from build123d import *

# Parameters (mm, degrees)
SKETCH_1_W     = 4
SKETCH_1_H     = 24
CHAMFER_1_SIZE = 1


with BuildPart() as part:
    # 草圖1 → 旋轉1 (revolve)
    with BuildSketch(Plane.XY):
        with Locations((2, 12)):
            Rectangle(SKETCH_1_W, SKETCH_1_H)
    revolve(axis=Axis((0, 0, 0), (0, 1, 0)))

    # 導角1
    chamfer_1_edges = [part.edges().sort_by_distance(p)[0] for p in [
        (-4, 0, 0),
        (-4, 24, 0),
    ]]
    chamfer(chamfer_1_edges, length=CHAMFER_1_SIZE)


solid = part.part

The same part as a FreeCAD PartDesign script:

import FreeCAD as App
import Part
import Sketcher
Q = App.Units.Quantity


def edges_at(feature, points):
    """Names of the edges that pass closest to the given points."""
    edges = feature.Shape.Edges
    near = lambda p: min(range(len(edges)), key=lambda i: edges[i].distToShape(Part.Vertex(*p))[0])
    return sorted({f"Edge{near(p) + 1}" for p in points})


def add_polygon(sketch, points):
    """Adds a closed chain of lines whose ends are joined by coincident constraints."""
    first, n = sketch.GeometryCount, len(points)
    for a, b in zip(points, points[1:] + points[:1]):
        sketch.addGeometry(Part.LineSegment(App.Vector(*a, 0), App.Vector(*b, 0)), False)
    for i in range(n):
        sketch.addConstraint(Sketcher.Constraint("Coincident", first + i, 2, first + (i + 1) % n, 1))

doc = App.newDocument("Part")
body = doc.addObject("PartDesign::Body", "Body")

# Sketch on XY plane
sketch1 = doc.addObject("Sketcher::SketchObject", "Sketch")
body.addObject(sketch1)
sketch1.AttachmentSupport = (doc.XY_Plane, [""])
sketch1.MapMode = "FlatFace"
add_polygon(sketch1, [(0, 24), (0, 0), (4, 0), (4, 24)])  # lines 0-3
sketch1.addConstraint([
    Sketcher.Constraint("Vertical", 0),
    Sketcher.Constraint("Horizontal", 1),
    Sketcher.Constraint("Vertical", 2),
    Sketcher.Constraint("Horizontal", 3),
    Sketcher.Constraint("Coincident", 0, 2, -1, 1),
    Sketcher.Constraint("DistanceX", 1, 1, 1, 2, Q("4 mm")),
    Sketcher.Constraint("DistanceY", 0, 2, 0, 1, Q("24 mm")),
])
revolution = doc.addObject("PartDesign::Revolution", "Revolution")
body.addObject(revolution)
revolution.Profile = sketch1
revolution.ReferenceAxis = (sketch1, ["V_Axis"])
revolution.Angle = 360
doc.recompute()

chamfer = doc.addObject("PartDesign::Chamfer", "Chamfer")
body.addObject(chamfer)
chamfer.Base = (revolution, edges_at(revolution, [(-4, 0, 0), (-4, 24, 0)]))
chamfer.Size = 1

doc.recompute()
